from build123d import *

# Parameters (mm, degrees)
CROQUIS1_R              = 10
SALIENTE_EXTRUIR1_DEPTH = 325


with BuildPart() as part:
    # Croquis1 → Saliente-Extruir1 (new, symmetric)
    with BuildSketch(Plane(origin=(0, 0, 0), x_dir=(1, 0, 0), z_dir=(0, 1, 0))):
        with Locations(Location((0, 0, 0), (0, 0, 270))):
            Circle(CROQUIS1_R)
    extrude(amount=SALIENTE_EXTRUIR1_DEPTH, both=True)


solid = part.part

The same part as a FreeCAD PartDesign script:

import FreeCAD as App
import Part
import Sketcher

V = App.Vector

doc = App.newDocument("Part")
body = doc.addObject("PartDesign::Body", "Body")

# Sketch on XZ plane
sketch1 = body.newObject("Sketcher::SketchObject", "Sketch")
sketch1.AttachmentSupport = (doc.getObject("XZ_Plane"), [""])
sketch1.MapMode = "FlatFace"
sketch1.addGeometry(Part.Circle(V(0, 0, 0), V(0, 0, 1), 10), False)
sketch1.addConstraint([
    Sketcher.Constraint("Coincident", 0, 3, -1, 1),
    Sketcher.Constraint("Diameter", 0, 20.0),
])
pad1 = body.newObject("PartDesign::Pad", "Pad")
pad1.Profile = sketch1
pad1.Length = 650
pad1.Midplane = True

doc.recompute()
